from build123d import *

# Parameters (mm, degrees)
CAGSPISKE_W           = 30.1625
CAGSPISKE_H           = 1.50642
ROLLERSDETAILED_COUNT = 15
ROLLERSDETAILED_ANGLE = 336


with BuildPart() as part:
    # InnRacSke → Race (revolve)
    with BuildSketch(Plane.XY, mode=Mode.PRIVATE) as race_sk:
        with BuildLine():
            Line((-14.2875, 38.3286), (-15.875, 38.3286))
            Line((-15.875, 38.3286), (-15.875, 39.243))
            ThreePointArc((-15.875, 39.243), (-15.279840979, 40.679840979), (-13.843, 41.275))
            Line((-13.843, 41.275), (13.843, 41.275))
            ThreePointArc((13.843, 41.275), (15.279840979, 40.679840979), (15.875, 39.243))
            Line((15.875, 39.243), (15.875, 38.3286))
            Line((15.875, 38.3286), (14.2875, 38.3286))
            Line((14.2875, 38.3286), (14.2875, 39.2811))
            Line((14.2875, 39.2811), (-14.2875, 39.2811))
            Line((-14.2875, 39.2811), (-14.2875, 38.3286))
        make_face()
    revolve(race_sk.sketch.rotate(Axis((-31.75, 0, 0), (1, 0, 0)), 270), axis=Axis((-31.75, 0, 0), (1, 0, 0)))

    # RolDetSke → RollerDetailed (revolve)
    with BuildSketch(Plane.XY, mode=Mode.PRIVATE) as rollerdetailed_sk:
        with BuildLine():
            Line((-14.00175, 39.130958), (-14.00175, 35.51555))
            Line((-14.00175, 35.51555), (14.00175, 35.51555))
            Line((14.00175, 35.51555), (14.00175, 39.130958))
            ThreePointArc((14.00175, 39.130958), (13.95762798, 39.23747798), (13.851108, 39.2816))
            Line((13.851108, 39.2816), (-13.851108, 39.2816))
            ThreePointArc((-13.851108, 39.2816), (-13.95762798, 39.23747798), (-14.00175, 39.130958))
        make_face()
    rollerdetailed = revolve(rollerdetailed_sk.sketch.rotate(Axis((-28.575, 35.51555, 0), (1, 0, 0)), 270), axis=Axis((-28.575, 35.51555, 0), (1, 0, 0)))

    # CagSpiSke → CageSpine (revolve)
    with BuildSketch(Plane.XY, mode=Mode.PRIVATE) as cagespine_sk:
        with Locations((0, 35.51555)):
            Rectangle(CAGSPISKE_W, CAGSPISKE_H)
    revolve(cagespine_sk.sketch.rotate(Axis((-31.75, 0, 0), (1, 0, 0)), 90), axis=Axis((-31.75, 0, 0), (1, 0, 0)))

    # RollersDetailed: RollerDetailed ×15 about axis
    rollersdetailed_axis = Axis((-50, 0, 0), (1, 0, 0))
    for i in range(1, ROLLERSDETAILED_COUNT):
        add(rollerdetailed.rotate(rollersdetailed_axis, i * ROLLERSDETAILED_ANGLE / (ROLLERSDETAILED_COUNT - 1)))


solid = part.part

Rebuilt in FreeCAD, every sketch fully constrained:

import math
import FreeCAD as App
import Part
import Sketcher

V = App.Vector
Q = App.Units.Quantity


def add_polygon(sketch, points):
    """Adds a closed chain of lines whose ends are joined by coincident constraints."""
    first, n = sketch.GeometryCount, len(points)
    for a, b in zip(points, points[1:] + points[:1]):
        sketch.addGeometry(Part.LineSegment(App.Vector(*a, 0), App.Vector(*b, 0)), False)
    for i in range(n):
        sketch.addConstraint(Sketcher.Constraint("Coincident", first + i, 2, first + (i + 1) % n, 1))

doc = App.newDocument("Part")
body = doc.addObject("PartDesign::Body", "Body")

# Sketch on XY plane
sketch1 = body.newObject("Sketcher::SketchObject", "Sketch")
sketch1.AttachmentSupport = (doc.getObject("XY_Plane"), [""])
sketch1.MapMode = "FlatFace"
sketch1.addGeometry(Part.LineSegment(V(-15.875, 38.3286, 0), V(-14.2875, 38.3286, 0)), False)
sketch1.addGeometry(Part.LineSegment(V(-14.2875, 38.3286, 0), V(-14.2875, 39.2811, 0)), False)
sketch1.addGeometry(Part.LineSegment(V(-14.2875, 39.2811, 0), V(14.2875, 39.2811, 0)), False)
sketch1.addGeometry(Part.LineSegment(V(14.2875, 39.2811, 0), V(14.2875, 38.3286, 0)), False)
sketch1.addGeometry(Part.LineSegment(V(14.2875, 38.3286, 0), V(15.875, 38.3286, 0)), False)
sketch1.addGeometry(Part.LineSegment(V(15.875, 38.3286, 0), V(15.875, 39.243, 0)), False)
sketch1.addGeometry(Part.ArcOfCircle(Part.Circle(V(13.843, 39.243, 0), V(0, 0, 1), 2.032), math.radians(0), math.radians(90)), False)
sketch1.addGeometry(Part.LineSegment(V(13.843, 41.275, 0), V(-13.843, 41.275, 0)), False)
sketch1.addGeometry(Part.ArcOfCircle(Part.Circle(V(-13.843, 39.243, 0), V(0, 0, 1), 2.032), math.radians(90), math.radians(180)), False)
sketch1.addGeometry(Part.LineSegment(V(-15.875, 39.243, 0), V(-15.875, 38.3286, 0)), False)
sketch1.addConstraint(Sketcher.Constraint("Coincident", 0, 2, 1, 1))
sketch1.addConstraint(Sketcher.Constraint("Coincident", 1, 2, 2, 1))
sketch1.addConstraint(Sketcher.Constraint("Coincident", 2, 2, 3, 1))
sketch1.addConstraint(Sketcher.Constraint("Coincident", 3, 2, 4, 1))
sketch1.addConstraint(Sketcher.Constraint("Coincident", 4, 2, 5, 1))
sketch1.addConstraint(Sketcher.Constraint("Tangent", 5, 2, 6, 1))
sketch1.addConstraint(Sketcher.Constraint("Tangent", 6, 2, 7, 1))
sketch1.addConstraint(Sketcher.Constraint("Tangent", 7, 2, 8, 1))
sketch1.addConstraint(Sketcher.Constraint("Tangent", 8, 2, 9, 1))
sketch1.addConstraint(Sketcher.Constraint("Coincident", 9, 2, 0, 1))
sketch1.addConstraint(Sketcher.Constraint("Horizontal", 0))
sketch1.addConstraint(Sketcher.Constraint("Vertical", 1))
sketch1.addConstraint(Sketcher.Constraint("Horizontal", 2))
sketch1.addConstraint(Sketcher.Constraint("Vertical", 3))
sketch1.addConstraint(Sketcher.Constraint("Horizontal", 4))
sketch1.addConstraint(Sketcher.Constraint("Vertical", 5))
sketch1.addConstraint(Sketcher.Constraint("Horizontal", 7))
sketch1.addConstraint(Sketcher.Constraint("Vertical", 9))
sketch1.addConstraint(Sketcher.Constraint("Equal", 6, 8))
sketch1.addConstraint(Sketcher.Constraint("Symmetric", 0, 2, 3, 2, -2))
sketch1.addConstraint(Sketcher.Constraint("Equal", 0, 4))
sketch1.addConstraint(Sketcher.Constraint("Radius", 6, Q("0.08 in")))
sketch1.addConstraint(Sketcher.Constraint("DistanceX", 7, 2, 7, 1, Q("1.09 in")))
sketch1.addConstraint(Sketcher.Constraint("DistanceX", 0, 1, 0, 2, Q("0.0625 in")))
sketch1.addConstraint(Sketcher.Constraint("DistanceY", 5, 1, 5, 2, Q("0.036 in")))
sketch1.addConstraint(Sketcher.Constraint("DistanceY", 1, 1, 1, 2, Q("0.0375 in")))
sketch1.addConstraint(Sketcher.Constraint("DistanceY", -1, 1, 6, 3, Q("1.545 in")))
revolution = body.newObject("PartDesign::Revolution", "Revolution")
revolution.Profile = sketch1
revolution.ReferenceAxis = (sketch1, ["H_Axis"])
revolution.Angle = 360

# Sketch on XY plane
sketch2 = body.newObject("Sketcher::SketchObject", "Sketch001")
sketch2.AttachmentSupport = (doc.getObject("XY_Plane"), [""])
sketch2.MapMode = "FlatFace"
sketch2.addGeometry(Part.LineSegment(V(-14.00175, 39.130958, 0), V(-14.00175, 35.51555, 0)), False)
sketch2.addGeometry(Part.LineSegment(V(-14.00175, 35.51555, 0), V(14.00175, 35.51555, 0)), False)
sketch2.addGeometry(Part.LineSegment(V(14.00175, 35.51555, 0), V(14.00175, 39.130958, 0)), False)
sketch2.addGeometry(Part.ArcOfCircle(Part.Circle(V(13.851108, 39.130958, 0), V(0, 0, 1), 0.150642), math.radians(0), math.radians(90)), False)
sketch2.addGeometry(Part.LineSegment(V(13.851108, 39.2816, 0), V(-13.851108, 39.2816, 0)), False)
sketch2.addGeometry(Part.ArcOfCircle(Part.Circle(V(-13.851108, 39.130958, 0), V(0, 0, 1), 0.150642), math.radians(90), math.radians(180)), False)
sketch2.addGeometry(Part.LineSegment(V(-14.00175, 35.51555, 0), V(14.00175, 35.51555, 0)), True)  # axis
sketch2.addConstraint(Sketcher.Constraint("Coincident", 0, 2, 1, 1))
sketch2.addConstraint(Sketcher.Constraint("Coincident", 1, 2, 2, 1))
sketch2.addConstraint(Sketcher.Constraint("Tangent", 2, 2, 3, 1))
sketch2.addConstraint(Sketcher.Constraint("Tangent", 3, 2, 4, 1))
sketch2.addConstraint(Sketcher.Constraint("Tangent", 4, 2, 5, 1))
sketch2.addConstraint(Sketcher.Constraint("Tangent", 5, 2, 0, 1))
sketch2.addConstraint(Sketcher.Constraint("Vertical", 0))
sketch2.addConstraint(Sketcher.Constraint("Horizontal", 1))
sketch2.addConstraint(Sketcher.Constraint("Vertical", 2))
sketch2.addConstraint(Sketcher.Constraint("Horizontal", 4))
sketch2.addConstraint(Sketcher.Constraint("Horizontal", 6))
sketch2.addConstraint(Sketcher.Constraint("Coincident", 6, 1, 0, 2))
sketch2.addConstraint(Sketcher.Constraint("Equal", 3, 5))
sketch2.addConstraint(Sketcher.Constraint("Vertical", 2, 2, 6, 2))
sketch2.addConstraint(Sketcher.Constraint("DistanceX", 1, 1, 1, 2, Q("1.1025 in")))
sketch2.addConstraint(Sketcher.Constraint("Radius", 3, 0.150642))
sketch2.addConstraint(Sketcher.Constraint("DistanceY", 0, 2, 0, 1, 3.615408))
sketch2.addConstraint(Sketcher.Constraint("DistanceY", -1, 1, 3, 2, 39.2816))
sketch2.addConstraint(Sketcher.Constraint("DistanceX", -1, 1, 3, 3, 13.851108))
revolution2 = body.newObject("PartDesign::Revolution", "Revolution001")
revolution2.Profile = sketch2
revolution2.ReferenceAxis = (sketch2, ["Axis0"])
revolution2.Angle = 360

# Sketch on XY plane
sketch3 = body.newObject("Sketcher::SketchObject", "Sketch002")
sketch3.AttachmentSupport = (doc.getObject("XY_Plane"), [""])
sketch3.MapMode = "FlatFace"
add_polygon(sketch3, [(-15.08125, 36.26876), (-15.08125, 34.76234), (15.08125, 34.76234), (15.08125, 36.26876)])  # lines 0-3
sketch3.addConstraint(Sketcher.Constraint("Vertical", 0))
sketch3.addConstraint(Sketcher.Constraint("Horizontal", 1))
sketch3.addConstraint(Sketcher.Constraint("Vertical", 2))
sketch3.addConstraint(Sketcher.Constraint("Horizontal", 3))
sketch3.addConstraint(Sketcher.Constraint("DistanceX", 1, 1, 1, 2, Q("1.1875 in")))
sketch3.addConstraint(Sketcher.Constraint("DistanceX", 0, 2, -1, 1, Q("0.59375 in")))
sketch3.addConstraint(Sketcher.Constraint("DistanceY", 0, 2, 0, 1, 1.50642))
sketch3.addConstraint(Sketcher.Constraint("DistanceY", -1, 1, 0, 2, 34.76234))
revolution3 = body.newObject("PartDesign::Revolution", "Revolution002")
revolution3.Profile = sketch3
revolution3.ReferenceAxis = (sketch3, ["H_Axis"])
revolution3.Angle = 360
doc.recompute()

polarpattern = body.newObject("PartDesign::PolarPattern", "PolarPattern")
polarpattern.Originals = [revolution2]
polarpattern.Axis = (doc.getObject("X_Axis"), [""])
polarpattern.Angle = 360
polarpattern.Occurrences = 15
body.Tip = polarpattern

doc.recompute()
